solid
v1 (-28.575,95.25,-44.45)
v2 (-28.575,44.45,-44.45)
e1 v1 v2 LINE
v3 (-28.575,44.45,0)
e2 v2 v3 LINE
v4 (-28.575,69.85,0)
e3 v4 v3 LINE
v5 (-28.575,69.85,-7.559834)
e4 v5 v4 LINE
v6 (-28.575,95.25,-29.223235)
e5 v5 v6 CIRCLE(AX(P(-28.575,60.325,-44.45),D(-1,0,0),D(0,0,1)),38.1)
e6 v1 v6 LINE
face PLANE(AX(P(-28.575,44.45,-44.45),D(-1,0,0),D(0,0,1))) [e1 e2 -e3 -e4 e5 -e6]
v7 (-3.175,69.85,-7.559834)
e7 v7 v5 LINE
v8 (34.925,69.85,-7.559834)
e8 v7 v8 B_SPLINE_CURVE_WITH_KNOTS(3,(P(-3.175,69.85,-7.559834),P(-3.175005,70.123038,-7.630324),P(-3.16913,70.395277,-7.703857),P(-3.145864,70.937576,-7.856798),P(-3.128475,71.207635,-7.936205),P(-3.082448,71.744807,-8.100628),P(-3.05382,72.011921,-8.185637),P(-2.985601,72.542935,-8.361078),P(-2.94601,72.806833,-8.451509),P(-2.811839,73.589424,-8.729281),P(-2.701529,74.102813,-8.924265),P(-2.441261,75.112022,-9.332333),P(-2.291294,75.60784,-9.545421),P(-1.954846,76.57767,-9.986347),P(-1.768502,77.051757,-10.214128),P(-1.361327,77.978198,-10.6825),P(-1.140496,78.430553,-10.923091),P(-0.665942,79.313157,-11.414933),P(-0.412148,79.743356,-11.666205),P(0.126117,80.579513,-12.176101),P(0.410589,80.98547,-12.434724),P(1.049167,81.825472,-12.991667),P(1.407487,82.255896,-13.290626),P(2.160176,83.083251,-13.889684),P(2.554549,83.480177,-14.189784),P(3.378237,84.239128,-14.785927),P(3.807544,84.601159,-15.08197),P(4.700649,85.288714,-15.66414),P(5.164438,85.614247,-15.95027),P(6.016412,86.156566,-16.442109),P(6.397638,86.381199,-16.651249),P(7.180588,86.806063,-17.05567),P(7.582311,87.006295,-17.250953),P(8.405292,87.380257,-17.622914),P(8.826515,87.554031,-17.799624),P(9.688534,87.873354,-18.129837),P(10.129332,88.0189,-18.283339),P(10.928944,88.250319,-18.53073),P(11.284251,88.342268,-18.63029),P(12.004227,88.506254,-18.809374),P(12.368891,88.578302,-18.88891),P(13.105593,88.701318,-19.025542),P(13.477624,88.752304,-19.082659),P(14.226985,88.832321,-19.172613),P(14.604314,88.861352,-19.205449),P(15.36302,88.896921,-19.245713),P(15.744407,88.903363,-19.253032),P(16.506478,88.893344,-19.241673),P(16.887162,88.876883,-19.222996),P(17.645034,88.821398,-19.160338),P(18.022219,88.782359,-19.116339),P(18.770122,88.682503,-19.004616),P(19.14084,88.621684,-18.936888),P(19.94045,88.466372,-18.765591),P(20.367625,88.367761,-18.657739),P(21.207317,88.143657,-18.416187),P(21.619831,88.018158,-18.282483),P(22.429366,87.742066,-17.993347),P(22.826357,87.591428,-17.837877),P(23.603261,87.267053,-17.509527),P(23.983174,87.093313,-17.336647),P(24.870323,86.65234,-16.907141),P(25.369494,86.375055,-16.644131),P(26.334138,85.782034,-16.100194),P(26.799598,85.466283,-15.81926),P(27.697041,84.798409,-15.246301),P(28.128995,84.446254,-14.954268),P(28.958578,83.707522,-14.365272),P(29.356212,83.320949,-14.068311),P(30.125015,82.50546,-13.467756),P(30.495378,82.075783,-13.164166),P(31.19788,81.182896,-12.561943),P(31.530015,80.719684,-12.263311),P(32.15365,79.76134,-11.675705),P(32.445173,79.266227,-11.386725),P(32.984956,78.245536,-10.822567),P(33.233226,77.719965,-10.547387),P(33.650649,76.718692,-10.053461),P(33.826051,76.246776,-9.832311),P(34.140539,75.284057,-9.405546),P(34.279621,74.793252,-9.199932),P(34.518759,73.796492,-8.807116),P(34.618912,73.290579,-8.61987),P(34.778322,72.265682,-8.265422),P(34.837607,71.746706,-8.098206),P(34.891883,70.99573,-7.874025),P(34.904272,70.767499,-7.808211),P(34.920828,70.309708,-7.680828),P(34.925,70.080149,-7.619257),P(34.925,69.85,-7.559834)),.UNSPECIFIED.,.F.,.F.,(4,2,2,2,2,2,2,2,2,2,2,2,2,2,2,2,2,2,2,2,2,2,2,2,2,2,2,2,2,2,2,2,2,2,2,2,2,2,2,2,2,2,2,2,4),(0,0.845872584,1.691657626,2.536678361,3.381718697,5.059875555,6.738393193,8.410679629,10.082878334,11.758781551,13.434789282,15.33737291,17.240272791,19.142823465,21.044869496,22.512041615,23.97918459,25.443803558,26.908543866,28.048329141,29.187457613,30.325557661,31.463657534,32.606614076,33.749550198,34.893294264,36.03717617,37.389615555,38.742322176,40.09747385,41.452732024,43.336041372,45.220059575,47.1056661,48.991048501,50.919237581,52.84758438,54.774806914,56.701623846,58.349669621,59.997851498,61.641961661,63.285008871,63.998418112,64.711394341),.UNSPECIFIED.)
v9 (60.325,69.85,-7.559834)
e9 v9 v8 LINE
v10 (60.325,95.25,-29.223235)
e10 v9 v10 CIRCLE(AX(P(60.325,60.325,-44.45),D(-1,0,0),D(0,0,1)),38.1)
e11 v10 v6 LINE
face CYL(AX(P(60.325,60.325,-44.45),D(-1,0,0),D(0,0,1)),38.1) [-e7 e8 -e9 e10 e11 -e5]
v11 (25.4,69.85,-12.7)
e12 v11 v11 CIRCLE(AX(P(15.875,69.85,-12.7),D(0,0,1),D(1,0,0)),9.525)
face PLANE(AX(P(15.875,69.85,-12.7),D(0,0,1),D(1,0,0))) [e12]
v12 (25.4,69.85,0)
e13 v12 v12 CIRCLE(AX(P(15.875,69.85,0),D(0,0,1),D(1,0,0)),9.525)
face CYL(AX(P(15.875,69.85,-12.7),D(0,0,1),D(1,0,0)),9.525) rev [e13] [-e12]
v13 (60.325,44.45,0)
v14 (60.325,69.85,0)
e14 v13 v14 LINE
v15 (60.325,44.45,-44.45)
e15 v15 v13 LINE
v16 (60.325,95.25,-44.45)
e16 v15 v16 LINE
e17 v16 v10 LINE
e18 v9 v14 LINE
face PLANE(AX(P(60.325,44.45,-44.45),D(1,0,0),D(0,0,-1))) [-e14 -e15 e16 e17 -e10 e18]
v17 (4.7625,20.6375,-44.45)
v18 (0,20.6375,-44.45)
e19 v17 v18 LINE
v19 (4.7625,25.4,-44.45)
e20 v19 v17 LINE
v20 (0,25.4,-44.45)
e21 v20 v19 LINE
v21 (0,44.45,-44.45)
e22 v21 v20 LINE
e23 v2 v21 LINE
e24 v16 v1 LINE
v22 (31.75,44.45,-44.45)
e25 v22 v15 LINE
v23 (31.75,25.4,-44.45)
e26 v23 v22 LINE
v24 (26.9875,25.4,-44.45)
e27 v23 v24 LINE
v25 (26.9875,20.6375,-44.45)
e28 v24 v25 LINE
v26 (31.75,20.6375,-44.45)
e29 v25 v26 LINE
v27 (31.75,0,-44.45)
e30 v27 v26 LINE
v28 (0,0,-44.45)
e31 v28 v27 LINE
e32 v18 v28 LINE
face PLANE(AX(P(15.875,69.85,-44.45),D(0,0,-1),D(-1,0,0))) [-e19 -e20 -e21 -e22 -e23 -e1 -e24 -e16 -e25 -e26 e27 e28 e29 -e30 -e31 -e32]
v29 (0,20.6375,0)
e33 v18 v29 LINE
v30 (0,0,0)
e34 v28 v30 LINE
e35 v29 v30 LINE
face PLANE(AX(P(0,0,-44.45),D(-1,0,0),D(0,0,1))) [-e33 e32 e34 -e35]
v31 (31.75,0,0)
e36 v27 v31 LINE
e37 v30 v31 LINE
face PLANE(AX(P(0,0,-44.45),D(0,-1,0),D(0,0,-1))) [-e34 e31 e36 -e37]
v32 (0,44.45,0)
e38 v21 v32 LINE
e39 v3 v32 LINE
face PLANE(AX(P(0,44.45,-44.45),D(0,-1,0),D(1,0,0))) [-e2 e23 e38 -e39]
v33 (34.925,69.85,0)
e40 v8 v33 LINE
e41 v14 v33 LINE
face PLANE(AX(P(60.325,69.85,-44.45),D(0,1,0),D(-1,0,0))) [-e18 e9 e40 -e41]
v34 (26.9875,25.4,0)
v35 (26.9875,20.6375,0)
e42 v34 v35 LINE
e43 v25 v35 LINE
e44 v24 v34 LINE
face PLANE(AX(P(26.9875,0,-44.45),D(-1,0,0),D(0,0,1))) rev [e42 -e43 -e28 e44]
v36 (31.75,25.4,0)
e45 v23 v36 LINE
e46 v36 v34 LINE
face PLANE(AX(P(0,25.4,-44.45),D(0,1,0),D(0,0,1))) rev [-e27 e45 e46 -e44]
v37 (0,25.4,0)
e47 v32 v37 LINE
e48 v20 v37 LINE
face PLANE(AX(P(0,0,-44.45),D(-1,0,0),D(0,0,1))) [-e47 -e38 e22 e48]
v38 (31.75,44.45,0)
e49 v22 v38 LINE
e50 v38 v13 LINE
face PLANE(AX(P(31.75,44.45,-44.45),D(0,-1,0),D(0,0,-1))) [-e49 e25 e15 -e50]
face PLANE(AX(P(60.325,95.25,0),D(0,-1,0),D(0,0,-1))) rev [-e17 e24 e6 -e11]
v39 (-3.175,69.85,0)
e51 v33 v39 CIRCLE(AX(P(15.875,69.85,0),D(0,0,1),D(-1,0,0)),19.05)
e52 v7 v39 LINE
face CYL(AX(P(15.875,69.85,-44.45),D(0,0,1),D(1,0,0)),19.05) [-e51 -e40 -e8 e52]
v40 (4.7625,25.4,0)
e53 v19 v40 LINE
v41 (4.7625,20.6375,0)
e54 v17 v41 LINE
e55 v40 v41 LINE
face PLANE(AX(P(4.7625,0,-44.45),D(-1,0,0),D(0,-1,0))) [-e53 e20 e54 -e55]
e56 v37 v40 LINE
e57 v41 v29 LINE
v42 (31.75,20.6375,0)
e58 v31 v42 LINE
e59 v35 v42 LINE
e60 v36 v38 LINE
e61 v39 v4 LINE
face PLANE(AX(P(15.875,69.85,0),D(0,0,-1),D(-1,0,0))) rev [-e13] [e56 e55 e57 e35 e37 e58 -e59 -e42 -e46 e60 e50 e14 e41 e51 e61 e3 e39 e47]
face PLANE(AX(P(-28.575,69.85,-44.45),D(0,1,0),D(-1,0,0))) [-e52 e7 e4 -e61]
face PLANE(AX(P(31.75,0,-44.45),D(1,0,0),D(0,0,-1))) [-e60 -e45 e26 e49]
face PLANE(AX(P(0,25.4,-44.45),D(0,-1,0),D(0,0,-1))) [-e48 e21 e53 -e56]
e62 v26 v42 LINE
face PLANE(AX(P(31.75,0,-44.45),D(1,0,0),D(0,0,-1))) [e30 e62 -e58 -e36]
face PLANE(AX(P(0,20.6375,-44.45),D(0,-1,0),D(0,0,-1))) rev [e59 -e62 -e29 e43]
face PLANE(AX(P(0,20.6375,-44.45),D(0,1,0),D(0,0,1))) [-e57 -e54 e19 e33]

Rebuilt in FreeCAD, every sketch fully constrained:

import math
import FreeCAD as App
import Part
import Sketcher

V = App.Vector
Q = App.Units.Quantity


def add_polygon(sketch, points):
    """Adds a closed chain of lines whose ends are joined by coincident constraints."""
    first, n = sketch.GeometryCount, len(points)
    for a, b in zip(points, points[1:] + points[:1]):
        sketch.addGeometry(Part.LineSegment(App.Vector(*a, 0), App.Vector(*b, 0)), False)
    for i in range(n):
        sketch.addConstraint(Sketcher.Constraint("Coincident", first + i, 2, first + (i + 1) % n, 1))

doc = App.newDocument("Part")
params = doc.addObject("Spreadsheet::Sheet", "Params")
for row, (alias, value) in enumerate([
    ("sketch1_width", "1 in"),
    ("sketch1_radius", "0.75 in"),
    ("sketch1_width2", "1.25 in"),
    ("sketch1_height", "1.75 in"),
    ("pad1_length", "1.75 in"),
    ("sketch2_radius", "1.5 in"),
    ("sketch2_width", "1 in"),
    ("pad2_length", "3.5 in"),
    ("sketch3_diameter", "0.75 in"),
    ("pocket1_length", "0.5 in"),
    ("sketch4_width", "0.1875 in"),
], start=1):
    params.set(f"A{row}", alias)
    params.set(f"B{row}", "=" + value)
    params.setAlias(f"B{row}", alias)

body = doc.addObject("PartDesign::Body", "Body")

# Sketch on XY plane
sketch1 = body.newObject("Sketcher::SketchObject", "Sketch")
sketch1.AttachmentSupport = (doc.getObject("XY_Plane"), [""])
sketch1.MapMode = "FlatFace"
sketch1.addGeometry(Part.LineSegment(V(0, 0, 0), V(32, 0, 0)), False)
sketch1.addGeometry(Part.LineSegment(V(32, 0, 0), V(32, 44, 0)), False)
sketch1.addGeometry(Part.LineSegment(V(32, 44, 0), V(60, 44, 0)), False)
sketch1.addGeometry(Part.LineSegment(V(60, 44, 0), V(60, 70, 0)), False)
sketch1.addGeometry(Part.LineSegment(V(60, 70, 0), V(35, 70, 0)), False)
sketch1.addGeometry(Part.ArcOfCircle(Part.Circle(V(16, 70, 0), V(0, 0, 1), 19), math.radians(0), math.radians(180)), False)
sketch1.addGeometry(Part.LineSegment(V(-3, 70, 0), V(-29, 70, 0)), False)
sketch1.addGeometry(Part.LineSegment(V(-29, 70, 0), V(-29, 44, 0)), False)
sketch1.addGeometry(Part.LineSegment(V(-29, 44, 0), V(0, 44, 0)), False)
sketch1.addGeometry(Part.LineSegment(V(0, 44, 0), V(0, 0, 0)), False)
sketch1.addConstraint(Sketcher.Constraint("Coincident", 0, 2, 1, 1))
sketch1.addConstraint(Sketcher.Constraint("Coincident", 1, 2, 2, 1))
sketch1.addConstraint(Sketcher.Constraint("Coincident", 2, 2, 3, 1))
sketch1.addConstraint(Sketcher.Constraint("Coincident", 3, 2, 4, 1))
sketch1.addConstraint(Sketcher.Constraint("Coincident", 4, 2, 5, 1))
sketch1.addConstraint(Sketcher.Constraint("Coincident", 5, 2, 6, 1))
sketch1.addConstraint(Sketcher.Constraint("Coincident", 6, 2, 7, 1))
sketch1.addConstraint(Sketcher.Constraint("Coincident", 7, 2, 8, 1))
sketch1.addConstraint(Sketcher.Constraint("Coincident", 8, 2, 9, 1))
sketch1.addConstraint(Sketcher.Constraint("Coincident", 9, 2, 0, 1))
sketch1.addConstraint(Sketcher.Constraint("Horizontal", 0))
sketch1.addConstraint(Sketcher.Constraint("Vertical", 1))
sketch1.addConstraint(Sketcher.Constraint("Horizontal", 2))
sketch1.addConstraint(Sketcher.Constraint("Vertical", 3))
sketch1.addConstraint(Sketcher.Constraint("Horizontal", 4))
sketch1.addConstraint(Sketcher.Constraint("Horizontal", 6))
sketch1.addConstraint(Sketcher.Constraint("Vertical", 7))
sketch1.addConstraint(Sketcher.Constraint("Horizontal", 8))
sketch1.addConstraint(Sketcher.Constraint("Vertical", 9))
sketch1.addConstraint(Sketcher.Constraint("Coincident", 9, 2, -1, 1))
sketch1.addConstraint(Sketcher.Constraint("Horizontal", 5, 3, 3, 2))
sketch1.addConstraint(Sketcher.Constraint("Horizontal", 4, 2, 5, 2))
sketch1.addConstraint(Sketcher.Constraint("Horizontal", 2, 2, 7, 2))
sketch1.addConstraint(Sketcher.Constraint("Equal", 4, 6))
sketch1.addConstraint(Sketcher.Constraint("Equal", 2, 8))
sketch1.addConstraint(Sketcher.Constraint("Equal", 6, 3))
sketch1.addConstraint(Sketcher.Constraint("DistanceX", 4, 2, 4, 1, Q("1 in")))
sketch1.addConstraint(Sketcher.Constraint("Radius", 5, Q("0.75 in")))
sketch1.addConstraint(Sketcher.Constraint("DistanceX", 0, 1, 0, 2, Q("1.25 in")))
sketch1.addConstraint(Sketcher.Constraint("DistanceY", 1, 1, 1, 2, Q("1.75 in")))
sketch1.setExpression("Constraints[26]", "Params.sketch1_width")
sketch1.setExpression("Constraints[27]", "Params.sketch1_radius")
sketch1.setExpression("Constraints[28]", "Params.sketch1_width2")
sketch1.setExpression("Constraints[29]", "Params.sketch1_height")
pad1 = body.newObject("PartDesign::Pad", "Pad")
pad1.Profile = sketch1
pad1.setExpression("Length", "Params.pad1_length")
pad1.Reversed = True

# Sketch on YZ plane
sketch2 = body.newObject("Sketcher::SketchObject", "Sketch001")
sketch2.AttachmentSupport = (doc.getObject("YZ_Plane"), [""])
sketch2.MapMode = "FlatFace"
sketch2.AttachmentOffset = App.Placement(V(0, 0, -1.125 * 25.4), App.Rotation())
sketch2.addGeometry(Part.LineSegment(V(95, -44, 0), V(70, -44, 0)), False)
sketch2.addGeometry(Part.LineSegment(V(70, -44, 0), V(70, -8, 0)), False)
sketch2.addGeometry(Part.ArcOfCircle(Part.Circle(V(60, -44, 0), V(0, 0, 1), 38), math.radians(24), math.radians(76)), False)
sketch2.addGeometry(Part.LineSegment(V(95, -29, 0), V(95, -44, 0)), False)
sketch2.addConstraint(Sketcher.Constraint("Coincident", 0, 2, 1, 1))
sketch2.addConstraint(Sketcher.Constraint("Coincident", 1, 2, 2, 2))
sketch2.addConstraint(Sketcher.Constraint("Coincident", 2, 1, 3, 1))
sketch2.addConstraint(Sketcher.Constraint("Coincident", 3, 2, 0, 1))
sketch2.addConstraint(Sketcher.Constraint("Horizontal", 0))
sketch2.addConstraint(Sketcher.Constraint("Vertical", 1))
sketch2.addConstraint(Sketcher.Constraint("Vertical", 3))
sketch2.addConstraint(Sketcher.Constraint("Horizontal", 2, 3, 0, 2))
sketch2.addConstraint(Sketcher.Constraint("Radius", 2, Q("1.5 in")))
sketch2.addConstraint(Sketcher.Constraint("DistanceX", 0, 2, 0, 1, Q("1 in")))
sketch2.addConstraint(Sketcher.Constraint("DistanceY", 2, 3, -1, 1, Q("1.75 in")))
sketch2.addConstraint(Sketcher.Constraint("DistanceX", -1, 1, 0, 2, Q("2.75 in")))
sketch2.addConstraint(Sketcher.Constraint("DistanceX", -1, 1, 2, 3, Q("2.375 in")))
sketch2.setExpression("Constraints[8]", "Params.sketch2_radius")
sketch2.setExpression("Constraints[9]", "Params.sketch2_width")
pad2 = body.newObject("PartDesign::Pad", "Pad001")
pad2.Profile = sketch2
pad2.setExpression("Length", "Params.pad2_length")

# Sketch on XY plane
sketch3 = body.newObject("Sketcher::SketchObject", "Sketch002")
sketch3.AttachmentSupport = (doc.getObject("XY_Plane"), [""])
sketch3.MapMode = "FlatFace"
sketch3.addGeometry(Part.Circle(V(16, 70, 0), V(0, 0, 1), 10), False)
sketch3.addConstraint(Sketcher.Constraint("Diameter", 0, Q("0.75 in")))
sketch3.addConstraint(Sketcher.Constraint("DistanceY", -1, 1, 0, 3, Q("2.75 in")))
sketch3.addConstraint(Sketcher.Constraint("DistanceX", -1, 1, 0, 3, Q("0.625 in")))
sketch3.setExpression("Constraints[0]", "Params.sketch3_diameter")
pocket1 = body.newObject("PartDesign::Pocket", "Pocket")
pocket1.Profile = sketch3
pocket1.setExpression("Length", "Params.pocket1_length")

# Sketch on XY plane
sketch4 = body.newObject("Sketcher::SketchObject", "Sketch003")
sketch4.AttachmentSupport = (doc.getObject("XY_Plane"), [""])
sketch4.MapMode = "FlatFace"
add_polygon(sketch4, [(0, 25.4), (0, 20.6), (4.8, 20.6), (4.8, 25.4)])  # lines 0-3
add_polygon(sketch4, [(27, 25.4), (27, 20.6), (31.8, 20.6), (31.8, 25.4)])  # lines 4-7
sketch4.addConstraint(Sketcher.Constraint("Vertical", 0))
sketch4.addConstraint(Sketcher.Constraint("Horizontal", 1))
sketch4.addConstraint(Sketcher.Constraint("Vertical", 2))
sketch4.addConstraint(Sketcher.Constraint("Horizontal", 3))
sketch4.addConstraint(Sketcher.Constraint("Vertical", 4))
sketch4.addConstraint(Sketcher.Constraint("Horizontal", 5))
sketch4.addConstraint(Sketcher.Constraint("Vertical", 6))
sketch4.addConstraint(Sketcher.Constraint("Horizontal", 7))
sketch4.addConstraint(Sketcher.Constraint("PointOnObject", 0, 2, -2))
sketch4.addConstraint(Sketcher.Constraint("Horizontal", 1, 2, 4, 2))
sketch4.addConstraint(Sketcher.Constraint("Horizontal", 3, 2, 6, 2))
sketch4.addConstraint(Sketcher.Constraint("Equal", 3, 5))
sketch4.addConstraint(Sketcher.Constraint("Equal", 7, 0))
sketch4.addConstraint(Sketcher.Constraint("DistanceY", -1, 1, 2, 2, Q("1 in")))
sketch4.addConstraint(Sketcher.Constraint("DistanceX", 1, 1, 1, 2, Q("0.1875 in")))
sketch4.addConstraint(Sketcher.Constraint("DistanceX", -1, 1, 5, 2, Q("1.25 in")))
sketch4.setExpression("Constraints[22]", "Params.sketch4_width")
pocket2 = body.newObject("PartDesign::Pocket", "Pocket001")
pocket2.Profile = sketch4
pocket2.Type = "ThroughAll"

doc.recompute()
